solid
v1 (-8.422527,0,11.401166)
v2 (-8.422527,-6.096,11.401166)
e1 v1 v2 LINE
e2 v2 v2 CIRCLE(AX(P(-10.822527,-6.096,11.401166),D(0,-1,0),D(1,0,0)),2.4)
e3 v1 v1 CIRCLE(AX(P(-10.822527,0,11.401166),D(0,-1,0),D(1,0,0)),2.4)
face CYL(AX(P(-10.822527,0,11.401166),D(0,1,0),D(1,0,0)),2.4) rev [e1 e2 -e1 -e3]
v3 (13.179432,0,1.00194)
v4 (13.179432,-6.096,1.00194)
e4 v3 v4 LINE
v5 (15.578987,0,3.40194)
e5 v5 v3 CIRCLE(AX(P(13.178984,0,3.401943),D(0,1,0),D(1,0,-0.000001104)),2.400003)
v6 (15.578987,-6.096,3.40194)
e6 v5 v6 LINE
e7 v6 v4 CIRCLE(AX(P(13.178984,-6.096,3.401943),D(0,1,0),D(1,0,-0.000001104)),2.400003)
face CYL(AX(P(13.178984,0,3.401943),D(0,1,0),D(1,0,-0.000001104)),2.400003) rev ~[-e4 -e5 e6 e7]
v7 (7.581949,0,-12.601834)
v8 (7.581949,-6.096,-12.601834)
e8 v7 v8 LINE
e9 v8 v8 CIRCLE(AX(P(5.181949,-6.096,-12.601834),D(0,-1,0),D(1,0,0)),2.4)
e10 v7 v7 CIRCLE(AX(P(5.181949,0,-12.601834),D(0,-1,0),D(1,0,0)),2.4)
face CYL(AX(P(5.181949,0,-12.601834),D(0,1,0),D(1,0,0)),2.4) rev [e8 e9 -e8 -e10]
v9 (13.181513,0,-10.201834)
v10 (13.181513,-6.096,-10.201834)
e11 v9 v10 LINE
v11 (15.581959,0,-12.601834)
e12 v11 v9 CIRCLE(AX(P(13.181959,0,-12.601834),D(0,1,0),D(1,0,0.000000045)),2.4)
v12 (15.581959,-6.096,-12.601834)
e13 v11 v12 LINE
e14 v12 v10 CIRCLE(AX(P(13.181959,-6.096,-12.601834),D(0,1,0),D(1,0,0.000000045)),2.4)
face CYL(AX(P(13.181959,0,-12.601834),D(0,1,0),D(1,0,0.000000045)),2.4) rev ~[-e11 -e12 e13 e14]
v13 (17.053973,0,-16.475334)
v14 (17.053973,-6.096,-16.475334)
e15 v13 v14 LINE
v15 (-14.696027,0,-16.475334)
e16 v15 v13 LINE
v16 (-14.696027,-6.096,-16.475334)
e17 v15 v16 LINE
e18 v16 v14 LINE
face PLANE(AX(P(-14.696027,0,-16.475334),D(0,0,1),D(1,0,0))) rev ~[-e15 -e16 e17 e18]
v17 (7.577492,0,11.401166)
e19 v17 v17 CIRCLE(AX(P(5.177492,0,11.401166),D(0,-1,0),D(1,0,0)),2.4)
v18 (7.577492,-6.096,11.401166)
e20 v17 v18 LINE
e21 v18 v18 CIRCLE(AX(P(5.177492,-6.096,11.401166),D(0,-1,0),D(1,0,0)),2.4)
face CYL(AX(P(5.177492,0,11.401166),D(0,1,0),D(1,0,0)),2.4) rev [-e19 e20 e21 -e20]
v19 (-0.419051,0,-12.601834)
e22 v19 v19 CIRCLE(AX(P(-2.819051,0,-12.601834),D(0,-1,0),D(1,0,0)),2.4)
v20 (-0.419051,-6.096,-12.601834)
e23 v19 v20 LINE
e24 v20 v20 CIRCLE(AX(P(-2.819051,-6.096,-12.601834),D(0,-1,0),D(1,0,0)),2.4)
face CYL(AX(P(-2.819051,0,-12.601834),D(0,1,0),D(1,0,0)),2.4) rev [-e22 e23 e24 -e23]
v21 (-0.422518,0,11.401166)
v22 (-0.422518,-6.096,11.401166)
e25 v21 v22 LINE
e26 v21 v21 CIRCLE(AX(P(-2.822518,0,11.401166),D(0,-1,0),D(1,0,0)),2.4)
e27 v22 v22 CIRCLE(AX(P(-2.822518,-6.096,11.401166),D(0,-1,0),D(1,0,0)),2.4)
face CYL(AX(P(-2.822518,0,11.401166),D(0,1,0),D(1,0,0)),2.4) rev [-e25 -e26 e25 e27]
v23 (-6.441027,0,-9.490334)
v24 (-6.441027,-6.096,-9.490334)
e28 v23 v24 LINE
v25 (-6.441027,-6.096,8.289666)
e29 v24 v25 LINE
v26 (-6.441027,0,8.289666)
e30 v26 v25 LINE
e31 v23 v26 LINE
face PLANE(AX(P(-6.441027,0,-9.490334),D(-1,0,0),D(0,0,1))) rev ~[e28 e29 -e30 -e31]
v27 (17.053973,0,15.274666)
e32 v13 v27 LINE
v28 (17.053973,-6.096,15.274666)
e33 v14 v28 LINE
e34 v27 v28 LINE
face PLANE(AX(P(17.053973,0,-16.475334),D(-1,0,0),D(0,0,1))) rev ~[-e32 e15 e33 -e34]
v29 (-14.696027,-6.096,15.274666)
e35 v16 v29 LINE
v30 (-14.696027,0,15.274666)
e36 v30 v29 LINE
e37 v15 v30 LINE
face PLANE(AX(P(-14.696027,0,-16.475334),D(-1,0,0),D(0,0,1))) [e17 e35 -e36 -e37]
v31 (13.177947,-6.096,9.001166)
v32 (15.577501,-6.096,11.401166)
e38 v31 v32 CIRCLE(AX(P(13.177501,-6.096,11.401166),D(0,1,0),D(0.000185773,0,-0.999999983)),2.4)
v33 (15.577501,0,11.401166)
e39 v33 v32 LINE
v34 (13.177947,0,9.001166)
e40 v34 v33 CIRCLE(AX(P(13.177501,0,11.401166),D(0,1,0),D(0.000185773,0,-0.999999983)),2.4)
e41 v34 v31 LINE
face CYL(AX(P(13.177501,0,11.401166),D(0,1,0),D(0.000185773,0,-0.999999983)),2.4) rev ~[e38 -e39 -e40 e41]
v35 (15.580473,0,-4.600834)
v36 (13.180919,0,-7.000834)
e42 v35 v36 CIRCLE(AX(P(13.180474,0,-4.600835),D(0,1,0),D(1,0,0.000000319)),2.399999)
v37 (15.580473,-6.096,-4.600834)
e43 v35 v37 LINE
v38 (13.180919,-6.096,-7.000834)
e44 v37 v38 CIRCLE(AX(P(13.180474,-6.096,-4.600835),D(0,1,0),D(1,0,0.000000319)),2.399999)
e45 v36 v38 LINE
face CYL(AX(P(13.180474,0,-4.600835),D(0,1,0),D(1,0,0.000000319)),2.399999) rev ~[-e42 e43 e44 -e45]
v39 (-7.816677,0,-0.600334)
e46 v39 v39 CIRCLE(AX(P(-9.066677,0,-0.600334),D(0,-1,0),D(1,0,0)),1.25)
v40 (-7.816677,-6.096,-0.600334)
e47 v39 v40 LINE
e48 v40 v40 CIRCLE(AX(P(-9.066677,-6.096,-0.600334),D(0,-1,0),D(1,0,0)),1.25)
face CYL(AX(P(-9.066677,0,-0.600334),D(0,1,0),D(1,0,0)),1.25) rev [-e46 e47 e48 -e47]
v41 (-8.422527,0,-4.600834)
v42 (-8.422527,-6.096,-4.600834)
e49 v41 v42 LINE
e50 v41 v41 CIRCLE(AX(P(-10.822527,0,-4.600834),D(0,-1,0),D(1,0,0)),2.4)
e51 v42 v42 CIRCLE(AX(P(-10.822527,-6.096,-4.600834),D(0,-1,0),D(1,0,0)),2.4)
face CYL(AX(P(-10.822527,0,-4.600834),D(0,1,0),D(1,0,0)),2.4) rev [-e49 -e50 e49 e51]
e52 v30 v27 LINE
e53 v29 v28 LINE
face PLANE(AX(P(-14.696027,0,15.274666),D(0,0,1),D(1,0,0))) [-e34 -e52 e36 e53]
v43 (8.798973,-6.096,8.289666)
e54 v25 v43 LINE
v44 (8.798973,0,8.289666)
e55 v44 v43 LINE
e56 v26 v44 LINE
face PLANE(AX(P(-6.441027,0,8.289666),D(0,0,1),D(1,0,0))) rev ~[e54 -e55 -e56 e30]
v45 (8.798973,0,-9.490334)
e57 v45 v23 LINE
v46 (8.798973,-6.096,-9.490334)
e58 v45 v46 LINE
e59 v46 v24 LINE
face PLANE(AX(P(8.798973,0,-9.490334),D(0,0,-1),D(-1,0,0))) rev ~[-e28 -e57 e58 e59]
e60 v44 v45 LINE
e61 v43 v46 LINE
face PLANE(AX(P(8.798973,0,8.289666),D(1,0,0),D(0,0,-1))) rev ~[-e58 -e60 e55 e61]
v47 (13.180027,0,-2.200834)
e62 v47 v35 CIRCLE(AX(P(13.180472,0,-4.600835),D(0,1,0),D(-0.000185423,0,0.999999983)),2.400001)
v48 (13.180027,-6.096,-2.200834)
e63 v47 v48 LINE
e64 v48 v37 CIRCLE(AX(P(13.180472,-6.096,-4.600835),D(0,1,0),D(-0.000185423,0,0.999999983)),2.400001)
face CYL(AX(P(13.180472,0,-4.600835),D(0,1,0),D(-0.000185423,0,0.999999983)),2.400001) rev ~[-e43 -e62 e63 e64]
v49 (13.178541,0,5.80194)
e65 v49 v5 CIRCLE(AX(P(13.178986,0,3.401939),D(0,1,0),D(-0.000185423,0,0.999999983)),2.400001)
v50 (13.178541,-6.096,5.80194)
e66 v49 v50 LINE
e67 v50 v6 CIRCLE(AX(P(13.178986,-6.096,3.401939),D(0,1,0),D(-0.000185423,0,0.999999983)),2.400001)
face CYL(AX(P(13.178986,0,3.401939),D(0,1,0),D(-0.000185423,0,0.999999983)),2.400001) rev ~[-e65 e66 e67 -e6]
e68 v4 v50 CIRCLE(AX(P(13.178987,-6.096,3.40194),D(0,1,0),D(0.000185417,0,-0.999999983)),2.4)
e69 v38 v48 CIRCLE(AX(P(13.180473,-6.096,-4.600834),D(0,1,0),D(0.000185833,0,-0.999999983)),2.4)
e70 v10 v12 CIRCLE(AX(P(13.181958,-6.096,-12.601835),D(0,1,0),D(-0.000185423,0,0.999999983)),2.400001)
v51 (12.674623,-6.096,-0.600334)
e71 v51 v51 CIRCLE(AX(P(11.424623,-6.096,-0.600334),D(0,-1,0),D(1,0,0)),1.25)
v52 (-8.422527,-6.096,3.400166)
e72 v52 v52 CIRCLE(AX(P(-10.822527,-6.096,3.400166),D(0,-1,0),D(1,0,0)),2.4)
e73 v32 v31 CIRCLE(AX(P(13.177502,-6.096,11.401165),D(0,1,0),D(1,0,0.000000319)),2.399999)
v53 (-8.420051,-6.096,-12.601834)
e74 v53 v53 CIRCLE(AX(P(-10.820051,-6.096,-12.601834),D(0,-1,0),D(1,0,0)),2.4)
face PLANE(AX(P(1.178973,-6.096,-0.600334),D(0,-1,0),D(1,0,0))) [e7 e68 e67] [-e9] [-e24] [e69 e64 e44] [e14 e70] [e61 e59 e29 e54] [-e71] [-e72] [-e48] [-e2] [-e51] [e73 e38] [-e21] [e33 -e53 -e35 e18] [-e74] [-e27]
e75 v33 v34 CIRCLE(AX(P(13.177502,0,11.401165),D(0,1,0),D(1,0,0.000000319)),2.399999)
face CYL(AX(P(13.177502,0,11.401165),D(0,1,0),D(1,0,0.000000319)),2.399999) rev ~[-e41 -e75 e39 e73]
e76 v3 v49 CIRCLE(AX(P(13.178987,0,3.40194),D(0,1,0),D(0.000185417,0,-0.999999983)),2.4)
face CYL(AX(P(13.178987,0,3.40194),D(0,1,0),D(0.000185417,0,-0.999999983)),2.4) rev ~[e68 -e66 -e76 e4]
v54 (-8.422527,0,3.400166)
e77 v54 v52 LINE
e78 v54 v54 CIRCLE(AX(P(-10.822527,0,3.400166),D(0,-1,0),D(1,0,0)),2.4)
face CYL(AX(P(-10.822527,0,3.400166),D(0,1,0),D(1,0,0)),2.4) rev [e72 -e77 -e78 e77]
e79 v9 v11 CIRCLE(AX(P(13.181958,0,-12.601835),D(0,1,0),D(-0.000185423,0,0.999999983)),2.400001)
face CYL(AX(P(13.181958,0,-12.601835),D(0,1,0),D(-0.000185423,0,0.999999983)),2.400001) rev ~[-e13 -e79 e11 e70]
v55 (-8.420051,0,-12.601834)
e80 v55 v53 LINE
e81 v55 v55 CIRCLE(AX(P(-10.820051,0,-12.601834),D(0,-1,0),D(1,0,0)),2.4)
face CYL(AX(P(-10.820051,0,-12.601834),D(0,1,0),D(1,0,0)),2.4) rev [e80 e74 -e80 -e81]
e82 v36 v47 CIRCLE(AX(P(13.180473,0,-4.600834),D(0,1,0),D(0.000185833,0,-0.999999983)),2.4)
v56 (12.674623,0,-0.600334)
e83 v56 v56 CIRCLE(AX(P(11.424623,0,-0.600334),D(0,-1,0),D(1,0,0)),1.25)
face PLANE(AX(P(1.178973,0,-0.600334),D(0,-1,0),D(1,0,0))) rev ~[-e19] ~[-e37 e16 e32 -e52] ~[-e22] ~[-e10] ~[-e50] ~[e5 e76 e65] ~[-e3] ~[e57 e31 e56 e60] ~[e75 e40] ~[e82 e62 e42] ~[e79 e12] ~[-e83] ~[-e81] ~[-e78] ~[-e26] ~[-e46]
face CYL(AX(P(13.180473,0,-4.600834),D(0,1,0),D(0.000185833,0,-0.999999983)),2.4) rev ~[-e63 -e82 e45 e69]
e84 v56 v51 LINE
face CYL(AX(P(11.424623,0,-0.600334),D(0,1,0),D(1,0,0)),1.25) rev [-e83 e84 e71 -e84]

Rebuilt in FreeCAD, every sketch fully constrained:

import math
import FreeCAD as App
import Part
import Sketcher
Q = App.Units.Quantity


def add_polygon(sketch, points):
    """Adds a closed chain of lines whose ends are joined by coincident constraints."""
    first, n = sketch.GeometryCount, len(points)
    for a, b in zip(points, points[1:] + points[:1]):
        sketch.addGeometry(Part.LineSegment(App.Vector(*a, 0), App.Vector(*b, 0)), False)
    for i in range(n):
        sketch.addConstraint(Sketcher.Constraint("Coincident", first + i, 2, first + (i + 1) % n, 1))

doc = App.newDocument("Part")
params = doc.addObject("Spreadsheet::Sheet", "Params")
for row, (alias, value) in enumerate([
    ("sketch1_width", "0.6 in"),
    ("sketch1_height", "0.7 in"),
    ("sketch1_width2", "1.25 in"),
    ("pad1_length", "0.24 in"),
], start=1):
    params.set(f"A{row}", alias)
    params.set(f"B{row}", "=" + value)
    params.setAlias(f"B{row}", alias)

body = doc.addObject("PartDesign::Body", "Body")

# Sketch on XZ plane
sketch1 = body.newObject("Sketcher::SketchObject", "Sketch")
sketch1.AttachmentSupport = (doc.getObject("XZ_Plane"), [""])
sketch1.MapMode = "FlatFace"
add_polygon(sketch1, [(-14.7, 15.3), (-14.7, -16.5), (17.1, -16.5), (17.1, 15.3)])  # lines 0-3
sketch1.addGeometry(Part.Circle(App.Vector(-10.8, -12.6, 0), App.Vector(0, 0, 1), 2.4), False)  # 4
sketch1.addGeometry(Part.Circle(App.Vector(-2.8, -12.6, 0), App.Vector(0, 0, 1), 2.4), False)  # 5
sketch1.addGeometry(Part.Circle(App.Vector(-10.8, -4.6, 0), App.Vector(0, 0, 1), 2.4), False)  # 6
sketch1.addGeometry(Part.Circle(App.Vector(5.2, -12.6, 0), App.Vector(0, 0, 1), 2.4), False)  # 7
sketch1.addGeometry(Part.ArcOfCircle(Part.Circle(App.Vector(13.2, -12.6, 0), App.Vector(0, 0, 1), 2.4), math.radians(0), math.radians(90)), False)  # 8
sketch1.addGeometry(Part.ArcOfCircle(Part.Circle(App.Vector(13.2, -12.6, 0), App.Vector(0, 0, 1), 2.4), math.radians(90), math.radians(360)), False)  # 9
sketch1.addGeometry(Part.ArcOfCircle(Part.Circle(App.Vector(13.2, -4.6, 0), App.Vector(0, 0, 1), 2.4), math.radians(-90), math.radians(0)), False)  # 10
sketch1.addGeometry(Part.ArcOfCircle(Part.Circle(App.Vector(13.2, -4.6, 0), App.Vector(0, 0, 1), 2.4), math.radians(90), math.radians(270)), False)  # 11
sketch1.addGeometry(Part.ArcOfCircle(Part.Circle(App.Vector(13.2, -4.6, 0), App.Vector(0, 0, 1), 2.4), math.radians(0), math.radians(90)), False)  # 12
sketch1.addGeometry(Part.Circle(App.Vector(-9.1, -0.6, 0), App.Vector(0, 0, 1), 1.2), False)  # 13
sketch1.addGeometry(Part.Circle(App.Vector(-10.8, 3.4, 0), App.Vector(0, 0, 1), 2.4), False)  # 14
add_polygon(sketch1, [(-6.4, 8.3), (8.8, 8.3), (8.8, -9.5), (-6.4, -9.5)])  # lines 15-18
sketch1.addGeometry(Part.Circle(App.Vector(-10.8, 11.4, 0), App.Vector(0, 0, 1), 2.4), False)  # 19
sketch1.addGeometry(Part.Circle(App.Vector(-2.8, 11.4, 0), App.Vector(0, 0, 1), 2.4), False)  # 20
sketch1.addGeometry(Part.Circle(App.Vector(11.4, -0.6, 0), App.Vector(0, 0, 1), 1.2), False)  # 21
sketch1.addGeometry(Part.ArcOfCircle(Part.Circle(App.Vector(13.2, 3.4, 0), App.Vector(0, 0, 1), 2.4), math.radians(-90), math.radians(0)), False)  # 22
sketch1.addGeometry(Part.ArcOfCircle(Part.Circle(App.Vector(13.2, 3.4, 0), App.Vector(0, 0, 1), 2.4), math.radians(90), math.radians(270)), False)  # 23
sketch1.addGeometry(Part.ArcOfCircle(Part.Circle(App.Vector(13.2, 3.4, 0), App.Vector(0, 0, 1), 2.4), math.radians(0), math.radians(90)), False)  # 24
sketch1.addGeometry(Part.Circle(App.Vector(5.2, 11.4, 0), App.Vector(0, 0, 1), 2.4), False)  # 25
sketch1.addGeometry(Part.ArcOfCircle(Part.Circle(App.Vector(13.2, 11.4, 0), App.Vector(0, 0, 1), 2.4), math.radians(-90), math.radians(0)), False)  # 26
sketch1.addGeometry(Part.ArcOfCircle(Part.Circle(App.Vector(13.2, 11.4, 0), App.Vector(0, 0, 1), 2.4), math.radians(0), math.radians(270)), False)  # 27
sketch1.addConstraint(Sketcher.Constraint("Tangent", 8, 1, 9, 2))
sketch1.addConstraint(Sketcher.Constraint("Coincident", 9, 1, 8, 2))
sketch1.addConstraint(Sketcher.Constraint("Tangent", 10, 1, 11, 2))
sketch1.addConstraint(Sketcher.Constraint("Tangent", 11, 1, 12, 2))
sketch1.addConstraint(Sketcher.Constraint("Tangent", 12, 1, 10, 2))
sketch1.addConstraint(Sketcher.Constraint("Tangent", 22, 1, 23, 2))
sketch1.addConstraint(Sketcher.Constraint("Tangent", 23, 1, 24, 2))
sketch1.addConstraint(Sketcher.Constraint("Tangent", 24, 1, 22, 2))
sketch1.addConstraint(Sketcher.Constraint("Tangent", 26, 1, 27, 2))
sketch1.addConstraint(Sketcher.Constraint("Coincident", 27, 1, 26, 2))
sketch1.addConstraint(Sketcher.Constraint("Vertical", 0))
sketch1.addConstraint(Sketcher.Constraint("Horizontal", 1))
sketch1.addConstraint(Sketcher.Constraint("Vertical", 2))
sketch1.addConstraint(Sketcher.Constraint("Horizontal", 3))
sketch1.addConstraint(Sketcher.Constraint("Horizontal", 15))
sketch1.addConstraint(Sketcher.Constraint("Vertical", 16))
sketch1.addConstraint(Sketcher.Constraint("Horizontal", 17))
sketch1.addConstraint(Sketcher.Constraint("Vertical", 18))
sketch1.addConstraint(Sketcher.Constraint("Equal", 4, 5))
sketch1.addConstraint(Sketcher.Constraint("Equal", 5, 6))
sketch1.addConstraint(Sketcher.Constraint("Equal", 6, 7))
sketch1.addConstraint(Sketcher.Constraint("Equal", 7, 8))
sketch1.addConstraint(Sketcher.Constraint("Equal", 9, 10))
sketch1.addConstraint(Sketcher.Constraint("Equal", 12, 14))
sketch1.addConstraint(Sketcher.Constraint("Equal", 14, 19))
sketch1.addConstraint(Sketcher.Constraint("Equal", 19, 20))
sketch1.addConstraint(Sketcher.Constraint("Equal", 13, 21))
sketch1.addConstraint(Sketcher.Constraint("Equal", 12, 22))
sketch1.addConstraint(Sketcher.Constraint("Equal", 24, 25))
sketch1.addConstraint(Sketcher.Constraint("Equal", 25, 26))
sketch1.addConstraint(Sketcher.Constraint("Horizontal", 4, 3, 5, 3))
sketch1.addConstraint(Sketcher.Constraint("Horizontal", 5, 3, 7, 3))
sketch1.addConstraint(Sketcher.Constraint("Horizontal", 7, 3, 8, 3))
sketch1.addConstraint(Sketcher.Constraint("Horizontal", 6, 3, 10, 3))
sketch1.addConstraint(Sketcher.Constraint("Horizontal", 19, 3, 20, 3))
sketch1.addConstraint(Sketcher.Constraint("Horizontal", 13, 3, 21, 3))
sketch1.addConstraint(Sketcher.Constraint("Horizontal", 20, 3, 25, 3))
sketch1.addConstraint(Sketcher.Constraint("Horizontal", 25, 3, 26, 3))
sketch1.addConstraint(Sketcher.Constraint("Horizontal", 9, 3, 8, 1))
sketch1.addConstraint(Sketcher.Constraint("Horizontal", 11, 3, 12, 1))
sketch1.addConstraint(Sketcher.Constraint("Horizontal", 23, 3, 24, 1))
sketch1.addConstraint(Sketcher.Constraint("Horizontal", 26, 3, 27, 1))
sketch1.addConstraint(Sketcher.Constraint("Vertical", 6, 3, 14, 3))
sketch1.addConstraint(Sketcher.Constraint("Vertical", 14, 3, 19, 3))
sketch1.addConstraint(Sketcher.Constraint("Equal", 3, 0))
sketch1.addConstraint(Sketcher.Constraint("DistanceX", 15, 1, 15, 2, Q("0.6 in")))
sketch1.addConstraint(Sketcher.Constraint("DistanceY", 16, 2, 16, 1, Q("0.7 in")))
sketch1.addConstraint(Sketcher.Constraint("DistanceX", 1, 1, 1, 2, Q("1.25 in")))
sketch1.addConstraint(Sketcher.Constraint("Diameter", 4, 4.8))
sketch1.addConstraint(Sketcher.Constraint("Diameter", 13, 2.5))
sketch1.addConstraint(Sketcher.Constraint("DistanceX", 4, 3, 7, 3, Q("0.63 in")))
sketch1.addConstraint(Sketcher.Constraint("DistanceY", 4, 3, 14, 3, Q("0.63 in")))
sketch1.addConstraint(Sketcher.Constraint("DistanceY", 6, 3, 19, 3, Q("0.63 in")))
sketch1.addConstraint(Sketcher.Constraint("DistanceY", 17, 2, 13, 3, Q("0.35 in")))
sketch1.addConstraint(Sketcher.Constraint("DistanceX", 4, 3, 5, 3, Q("0.315 in")))
sketch1.addConstraint(Sketcher.Constraint("DistanceY", 4, 3, 6, 3, Q("0.315 in")))
sketch1.addConstraint(Sketcher.Constraint("DistanceX", 6, 3, 10, 3, Q("0.945 in")))
sketch1.addConstraint(Sketcher.Constraint("DistanceY", 0, 2, 13, 3, Q("0.625 in")))
sketch1.addConstraint(Sketcher.Constraint("DistanceX", 0, 2, 17, 2, Q("0.325 in")))
sketch1.addConstraint(Sketcher.Constraint("DistanceY", 6, 3, 13, 3, Q("0.1575 in")))
sketch1.addConstraint(Sketcher.Constraint("DistanceX", 0, 2, 6, 3, Q("0.1525 in")))
sketch1.addConstraint(Sketcher.Constraint("DistanceX", -1, 1, 26, 3, 13.177502))
sketch1.addConstraint(Sketcher.Constraint("DistanceX", 4, 3, -1, 1, 10.820051))
sketch1.addConstraint(Sketcher.Constraint("DistanceX", -1, 1, 8, 3, 13.181958))
sketch1.addConstraint(Sketcher.Constraint("DistanceX", 20, 3, -1, 1, 2.822518))
sketch1.addConstraint(Sketcher.Constraint("DistanceY", -1, 1, 23, 3, 3.40194))
sketch1.addConstraint(Sketcher.Constraint("DistanceX", -1, 1, 10, 1, 13.180919))
sketch1.addConstraint(Sketcher.Constraint("DistanceX", -1, 1, 23, 1, 13.178541))
sketch1.addConstraint(Sketcher.Constraint("DistanceX", 6, 3, 13, 3, 1.75585))
sketch1.addConstraint(Sketcher.Constraint("DistanceX", 19, 3, 20, 3, 8.000009))
sketch1.addConstraint(Sketcher.Constraint("DistanceX", 21, 3, 11, 3, 1.75585))
sketch1.addConstraint(Sketcher.Constraint("DistanceX", 21, 3, 22, 3, 1.754361))
sketch1.addConstraint(Sketcher.Constraint("DistanceX", 20, 3, 25, 3, 8.00001))
sketch1.addConstraint(Sketcher.Constraint("DistanceX", 12, 3, 9, 1, 0.001041))
sketch1.addConstraint(Sketcher.Constraint("DistanceX", 11, 1, 10, 1, 0.000892))
sketch1.addConstraint(Sketcher.Constraint("DistanceX", 21, 3, 22, 1, 1.754809))
sketch1.addConstraint(Sketcher.Constraint("DistanceY", 4, 3, -1, 1, 12.601834))
sketch1.addConstraint(Sketcher.Constraint("DistanceX", -1, 1, 26, 1, 13.177947))
sketch1.setExpression("Constraints[53]", "Params.sketch1_width")
sketch1.setExpression("Constraints[54]", "Params.sketch1_height")
sketch1.setExpression("Constraints[55]", "Params.sketch1_width2")
pad1 = body.newObject("PartDesign::Pad", "Pad")
pad1.Profile = sketch1
pad1.setExpression("Length", "Params.pad1_length")

doc.recompute()
